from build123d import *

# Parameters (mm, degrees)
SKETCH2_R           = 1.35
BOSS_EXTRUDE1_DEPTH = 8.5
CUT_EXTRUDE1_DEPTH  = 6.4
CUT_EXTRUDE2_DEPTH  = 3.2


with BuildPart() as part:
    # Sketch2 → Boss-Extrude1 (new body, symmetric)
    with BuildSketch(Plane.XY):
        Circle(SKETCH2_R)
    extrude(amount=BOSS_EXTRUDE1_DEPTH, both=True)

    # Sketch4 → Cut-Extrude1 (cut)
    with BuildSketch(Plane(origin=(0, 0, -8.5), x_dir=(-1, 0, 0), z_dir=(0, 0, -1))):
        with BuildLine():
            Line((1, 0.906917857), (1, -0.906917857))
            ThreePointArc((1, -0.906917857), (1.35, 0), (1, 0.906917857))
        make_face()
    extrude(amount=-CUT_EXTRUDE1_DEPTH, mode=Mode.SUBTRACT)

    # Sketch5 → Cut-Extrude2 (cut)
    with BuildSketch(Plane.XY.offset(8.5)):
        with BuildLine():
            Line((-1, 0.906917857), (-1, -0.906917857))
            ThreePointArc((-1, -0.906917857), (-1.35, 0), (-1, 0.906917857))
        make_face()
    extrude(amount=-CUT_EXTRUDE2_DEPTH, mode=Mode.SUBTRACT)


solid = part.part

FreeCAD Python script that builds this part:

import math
import FreeCAD as App
import Part
import Sketcher
Q = App.Units.Quantity

doc = App.newDocument("Part")
body = doc.addObject("PartDesign::Body", "Body")

# Sketch on XY plane
sketch1 = body.newObject("Sketcher::SketchObject", "Sketch")
sketch1.AttachmentSupport = (doc.getObject("XY_Plane"), [""])
sketch1.MapMode = "FlatFace"
sketch1.addGeometry(Part.Circle(App.Vector(0, 0, 0), App.Vector(0, 0, 1), 1.4), False)
sketch1.addConstraint(Sketcher.Constraint("Coincident", 0, 3, -1, 1))
sketch1.addConstraint(Sketcher.Constraint("Diameter", 0, Q("2.7 mm")))
pad1 = body.newObject("PartDesign::Pad", "Pad")
pad1.Profile = sketch1
pad1.Length = 17
pad1.Midplane = True

# Sketch on XY plane
sketch2 = body.newObject("Sketcher::SketchObject", "Sketch001")
sketch2.AttachmentSupport = (doc.getObject("XY_Plane"), [""])
sketch2.MapMode = "FlatFace"
sketch2.AttachmentOffset = App.Placement(App.Vector(0, 0, -8.5), App.Rotation())
sketch2.addGeometry(Part.LineSegment(App.Vector(-1, 0.9, 0), App.Vector(-1, -0.9, 0)), False)
sketch2.addGeometry(Part.ArcOfCircle(Part.Circle(App.Vector(0, 0, 0), App.Vector(0, 0, 1), 1.3), math.radians(138), math.radians(222)), False)
sketch2.addConstraint(Sketcher.Constraint("Coincident", 0, 1, 1, 1))
sketch2.addConstraint(Sketcher.Constraint("Coincident", 1, 2, 0, 2))
sketch2.addConstraint(Sketcher.Constraint("Vertical", 0))
sketch2.addConstraint(Sketcher.Constraint("Coincident", 1, 3, -1, 1))
sketch2.addConstraint(Sketcher.Constraint("Radius", 1, Q("1.35 mm")))
sketch2.addConstraint(Sketcher.Constraint("DistanceX", 0, 1, -1, 1, Q("1 mm")))
pocket1 = body.newObject("PartDesign::Pocket", "Pocket")
pocket1.Profile = sketch2
pocket1.Length = 6.4
pocket1.Reversed = True

# Sketch on XY plane
sketch3 = body.newObject("Sketcher::SketchObject", "Sketch002")
sketch3.AttachmentSupport = (doc.getObject("XY_Plane"), [""])
sketch3.MapMode = "FlatFace"
sketch3.AttachmentOffset = App.Placement(App.Vector(0, 0, 8.5), App.Rotation())
sketch3.addGeometry(Part.LineSegment(App.Vector(-1, -0.9, 0), App.Vector(-1, 0.9, 0)), False)
sketch3.addGeometry(Part.ArcOfCircle(Part.Circle(App.Vector(0, 0, 0), App.Vector(0, 0, 1), 1.3), math.radians(138), math.radians(222)), False)
sketch3.addConstraint(Sketcher.Constraint("Coincident", 0, 1, 1, 2))
sketch3.addConstraint(Sketcher.Constraint("Coincident", 1, 1, 0, 2))
sketch3.addConstraint(Sketcher.Constraint("Vertical", 0))
sketch3.addConstraint(Sketcher.Constraint("Coincident", 1, 3, -1, 1))
sketch3.addConstraint(Sketcher.Constraint("Radius", 1, Q("1.35 mm")))
sketch3.addConstraint(Sketcher.Constraint("DistanceX", 0, 1, -1, 1, Q("1 mm")))
pocket2 = body.newObject("PartDesign::Pocket", "Pocket001")
pocket2.Profile = sketch3
pocket2.Length = 3.2

doc.recompute()
